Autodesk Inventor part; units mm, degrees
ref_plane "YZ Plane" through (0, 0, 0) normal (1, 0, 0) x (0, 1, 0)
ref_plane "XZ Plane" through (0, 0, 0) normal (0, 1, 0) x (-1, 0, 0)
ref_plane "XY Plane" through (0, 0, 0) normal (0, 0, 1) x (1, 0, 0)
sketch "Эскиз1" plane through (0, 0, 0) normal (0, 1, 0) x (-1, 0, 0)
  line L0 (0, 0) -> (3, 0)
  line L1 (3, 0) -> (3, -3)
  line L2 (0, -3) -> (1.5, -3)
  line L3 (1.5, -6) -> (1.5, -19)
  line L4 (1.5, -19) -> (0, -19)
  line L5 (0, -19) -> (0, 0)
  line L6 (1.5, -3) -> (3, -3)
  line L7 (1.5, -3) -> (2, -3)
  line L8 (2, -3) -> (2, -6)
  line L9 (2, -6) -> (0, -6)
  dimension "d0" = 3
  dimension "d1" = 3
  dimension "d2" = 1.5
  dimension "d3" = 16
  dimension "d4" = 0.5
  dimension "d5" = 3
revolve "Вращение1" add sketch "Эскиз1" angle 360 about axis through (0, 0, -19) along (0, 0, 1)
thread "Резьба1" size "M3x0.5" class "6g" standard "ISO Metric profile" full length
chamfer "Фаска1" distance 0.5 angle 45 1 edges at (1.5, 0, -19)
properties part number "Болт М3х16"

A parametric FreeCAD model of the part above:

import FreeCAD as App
import Part
import Sketcher
from FreeCAD import Vector


def edges_at(feature, points):
    """Names of the edges that pass closest to the given points."""
    edges = feature.Shape.Edges
    near = lambda p: min(range(len(edges)), key=lambda i: edges[i].distToShape(Part.Vertex(*p))[0])
    return sorted({f"Edge{near(p) + 1}" for p in points})

doc = App.newDocument("Part")
params = doc.addObject("Spreadsheet::Sheet", "Params")
for row, (alias, value) in enumerate([
    ("sketch1_width", "3 mm"),
    ("sketch1_width2", "1.5 mm"),
    ("sketch1_width3", "0.5 mm"),
    ("revolution_angle", "360 deg"),
    ("chamfer_size", "0.5 mm"),
], start=1):
    params.set(f"A{row}", alias)
    params.set(f"B{row}", "=" + value)
    params.setAlias(f"B{row}", alias)

body = doc.addObject("PartDesign::Body", "Body")

# Sketch on XZ plane
sketch1 = body.newObject("Sketcher::SketchObject", "Sketch")
sketch1.AttachmentSupport = (doc.getObject("XZ_Plane"), [""])
sketch1.MapMode = "FlatFace"
sketch1.addGeometry([
    Part.LineSegment(Vector(-3, 0, 0), Vector(0, 0, 0)),  # 0
    Part.LineSegment(Vector(0, 0, 0), Vector(0, -19, 0)),  # 1
    Part.LineSegment(Vector(0, -19, 0), Vector(-1.5, -19, 0)),  # 2
    Part.LineSegment(Vector(-1.5, -19, 0), Vector(-1.5, -6, 0)),  # 3
    Part.LineSegment(Vector(-1.5, -6, 0), Vector(-2, -6, 0)),  # 4
    Part.LineSegment(Vector(-2, -6, 0), Vector(-2, -3, 0)),  # 5
    Part.LineSegment(Vector(-2, -3, 0), Vector(-3, -3, 0)),  # 6
    Part.LineSegment(Vector(-3, -3, 0), Vector(-3, 0, 0)),  # 7
], False)
sketch1.addConstraint([
    Sketcher.Constraint("Coincident", 0, 2, 1, 1),
    Sketcher.Constraint("Coincident", 1, 2, 2, 1),
    Sketcher.Constraint("Coincident", 2, 2, 3, 1),
    Sketcher.Constraint("Coincident", 3, 2, 4, 1),
    Sketcher.Constraint("Coincident", 4, 2, 5, 1),
    Sketcher.Constraint("Coincident", 5, 2, 6, 1),
    Sketcher.Constraint("Coincident", 6, 2, 7, 1),
    Sketcher.Constraint("Coincident", 7, 2, 0, 1),
    Sketcher.Constraint("Horizontal", 0),
    Sketcher.Constraint("Vertical", 1),
    Sketcher.Constraint("Horizontal", 2),
    Sketcher.Constraint("Vertical", 3),
    Sketcher.Constraint("Horizontal", 4),
    Sketcher.Constraint("Vertical", 5),
    Sketcher.Constraint("Horizontal", 6),
    Sketcher.Constraint("Vertical", 7),
    Sketcher.Constraint("Coincident", 0, 2, -1, 1),
    Sketcher.Constraint("Equal", 0, 5),
    Sketcher.Constraint("Equal", 5, 7),
    Sketcher.Constraint("DistanceX", 0, 1, 0, 2, 3.0),
    Sketcher.Constraint("DistanceX", 2, 2, 2, 1, 1.5),
    Sketcher.Constraint("DistanceX", 4, 2, 4, 1, 0.5),
    Sketcher.Constraint("DistanceY", 2, 2, 5, 2, 16.0),
])
sketch1.setExpression("Constraints[19]", "Params.sketch1_width")
sketch1.setExpression("Constraints[20]", "Params.sketch1_width2")
sketch1.setExpression("Constraints[21]", "Params.sketch1_width3")
revolution = body.newObject("PartDesign::Revolution", "Revolution")
revolution.Profile = sketch1
revolution.ReferenceAxis = (sketch1, ["V_Axis"])
revolution.setExpression("Angle", "Params.revolution_angle")
doc.recompute()

chamfer = body.newObject("PartDesign::Chamfer", "Chamfer")
chamfer.Base = (revolution, edges_at(revolution, [(1.5, 0, -19)]))
chamfer.setExpression("Size", "Params.chamfer_size")

doc.recompute()
